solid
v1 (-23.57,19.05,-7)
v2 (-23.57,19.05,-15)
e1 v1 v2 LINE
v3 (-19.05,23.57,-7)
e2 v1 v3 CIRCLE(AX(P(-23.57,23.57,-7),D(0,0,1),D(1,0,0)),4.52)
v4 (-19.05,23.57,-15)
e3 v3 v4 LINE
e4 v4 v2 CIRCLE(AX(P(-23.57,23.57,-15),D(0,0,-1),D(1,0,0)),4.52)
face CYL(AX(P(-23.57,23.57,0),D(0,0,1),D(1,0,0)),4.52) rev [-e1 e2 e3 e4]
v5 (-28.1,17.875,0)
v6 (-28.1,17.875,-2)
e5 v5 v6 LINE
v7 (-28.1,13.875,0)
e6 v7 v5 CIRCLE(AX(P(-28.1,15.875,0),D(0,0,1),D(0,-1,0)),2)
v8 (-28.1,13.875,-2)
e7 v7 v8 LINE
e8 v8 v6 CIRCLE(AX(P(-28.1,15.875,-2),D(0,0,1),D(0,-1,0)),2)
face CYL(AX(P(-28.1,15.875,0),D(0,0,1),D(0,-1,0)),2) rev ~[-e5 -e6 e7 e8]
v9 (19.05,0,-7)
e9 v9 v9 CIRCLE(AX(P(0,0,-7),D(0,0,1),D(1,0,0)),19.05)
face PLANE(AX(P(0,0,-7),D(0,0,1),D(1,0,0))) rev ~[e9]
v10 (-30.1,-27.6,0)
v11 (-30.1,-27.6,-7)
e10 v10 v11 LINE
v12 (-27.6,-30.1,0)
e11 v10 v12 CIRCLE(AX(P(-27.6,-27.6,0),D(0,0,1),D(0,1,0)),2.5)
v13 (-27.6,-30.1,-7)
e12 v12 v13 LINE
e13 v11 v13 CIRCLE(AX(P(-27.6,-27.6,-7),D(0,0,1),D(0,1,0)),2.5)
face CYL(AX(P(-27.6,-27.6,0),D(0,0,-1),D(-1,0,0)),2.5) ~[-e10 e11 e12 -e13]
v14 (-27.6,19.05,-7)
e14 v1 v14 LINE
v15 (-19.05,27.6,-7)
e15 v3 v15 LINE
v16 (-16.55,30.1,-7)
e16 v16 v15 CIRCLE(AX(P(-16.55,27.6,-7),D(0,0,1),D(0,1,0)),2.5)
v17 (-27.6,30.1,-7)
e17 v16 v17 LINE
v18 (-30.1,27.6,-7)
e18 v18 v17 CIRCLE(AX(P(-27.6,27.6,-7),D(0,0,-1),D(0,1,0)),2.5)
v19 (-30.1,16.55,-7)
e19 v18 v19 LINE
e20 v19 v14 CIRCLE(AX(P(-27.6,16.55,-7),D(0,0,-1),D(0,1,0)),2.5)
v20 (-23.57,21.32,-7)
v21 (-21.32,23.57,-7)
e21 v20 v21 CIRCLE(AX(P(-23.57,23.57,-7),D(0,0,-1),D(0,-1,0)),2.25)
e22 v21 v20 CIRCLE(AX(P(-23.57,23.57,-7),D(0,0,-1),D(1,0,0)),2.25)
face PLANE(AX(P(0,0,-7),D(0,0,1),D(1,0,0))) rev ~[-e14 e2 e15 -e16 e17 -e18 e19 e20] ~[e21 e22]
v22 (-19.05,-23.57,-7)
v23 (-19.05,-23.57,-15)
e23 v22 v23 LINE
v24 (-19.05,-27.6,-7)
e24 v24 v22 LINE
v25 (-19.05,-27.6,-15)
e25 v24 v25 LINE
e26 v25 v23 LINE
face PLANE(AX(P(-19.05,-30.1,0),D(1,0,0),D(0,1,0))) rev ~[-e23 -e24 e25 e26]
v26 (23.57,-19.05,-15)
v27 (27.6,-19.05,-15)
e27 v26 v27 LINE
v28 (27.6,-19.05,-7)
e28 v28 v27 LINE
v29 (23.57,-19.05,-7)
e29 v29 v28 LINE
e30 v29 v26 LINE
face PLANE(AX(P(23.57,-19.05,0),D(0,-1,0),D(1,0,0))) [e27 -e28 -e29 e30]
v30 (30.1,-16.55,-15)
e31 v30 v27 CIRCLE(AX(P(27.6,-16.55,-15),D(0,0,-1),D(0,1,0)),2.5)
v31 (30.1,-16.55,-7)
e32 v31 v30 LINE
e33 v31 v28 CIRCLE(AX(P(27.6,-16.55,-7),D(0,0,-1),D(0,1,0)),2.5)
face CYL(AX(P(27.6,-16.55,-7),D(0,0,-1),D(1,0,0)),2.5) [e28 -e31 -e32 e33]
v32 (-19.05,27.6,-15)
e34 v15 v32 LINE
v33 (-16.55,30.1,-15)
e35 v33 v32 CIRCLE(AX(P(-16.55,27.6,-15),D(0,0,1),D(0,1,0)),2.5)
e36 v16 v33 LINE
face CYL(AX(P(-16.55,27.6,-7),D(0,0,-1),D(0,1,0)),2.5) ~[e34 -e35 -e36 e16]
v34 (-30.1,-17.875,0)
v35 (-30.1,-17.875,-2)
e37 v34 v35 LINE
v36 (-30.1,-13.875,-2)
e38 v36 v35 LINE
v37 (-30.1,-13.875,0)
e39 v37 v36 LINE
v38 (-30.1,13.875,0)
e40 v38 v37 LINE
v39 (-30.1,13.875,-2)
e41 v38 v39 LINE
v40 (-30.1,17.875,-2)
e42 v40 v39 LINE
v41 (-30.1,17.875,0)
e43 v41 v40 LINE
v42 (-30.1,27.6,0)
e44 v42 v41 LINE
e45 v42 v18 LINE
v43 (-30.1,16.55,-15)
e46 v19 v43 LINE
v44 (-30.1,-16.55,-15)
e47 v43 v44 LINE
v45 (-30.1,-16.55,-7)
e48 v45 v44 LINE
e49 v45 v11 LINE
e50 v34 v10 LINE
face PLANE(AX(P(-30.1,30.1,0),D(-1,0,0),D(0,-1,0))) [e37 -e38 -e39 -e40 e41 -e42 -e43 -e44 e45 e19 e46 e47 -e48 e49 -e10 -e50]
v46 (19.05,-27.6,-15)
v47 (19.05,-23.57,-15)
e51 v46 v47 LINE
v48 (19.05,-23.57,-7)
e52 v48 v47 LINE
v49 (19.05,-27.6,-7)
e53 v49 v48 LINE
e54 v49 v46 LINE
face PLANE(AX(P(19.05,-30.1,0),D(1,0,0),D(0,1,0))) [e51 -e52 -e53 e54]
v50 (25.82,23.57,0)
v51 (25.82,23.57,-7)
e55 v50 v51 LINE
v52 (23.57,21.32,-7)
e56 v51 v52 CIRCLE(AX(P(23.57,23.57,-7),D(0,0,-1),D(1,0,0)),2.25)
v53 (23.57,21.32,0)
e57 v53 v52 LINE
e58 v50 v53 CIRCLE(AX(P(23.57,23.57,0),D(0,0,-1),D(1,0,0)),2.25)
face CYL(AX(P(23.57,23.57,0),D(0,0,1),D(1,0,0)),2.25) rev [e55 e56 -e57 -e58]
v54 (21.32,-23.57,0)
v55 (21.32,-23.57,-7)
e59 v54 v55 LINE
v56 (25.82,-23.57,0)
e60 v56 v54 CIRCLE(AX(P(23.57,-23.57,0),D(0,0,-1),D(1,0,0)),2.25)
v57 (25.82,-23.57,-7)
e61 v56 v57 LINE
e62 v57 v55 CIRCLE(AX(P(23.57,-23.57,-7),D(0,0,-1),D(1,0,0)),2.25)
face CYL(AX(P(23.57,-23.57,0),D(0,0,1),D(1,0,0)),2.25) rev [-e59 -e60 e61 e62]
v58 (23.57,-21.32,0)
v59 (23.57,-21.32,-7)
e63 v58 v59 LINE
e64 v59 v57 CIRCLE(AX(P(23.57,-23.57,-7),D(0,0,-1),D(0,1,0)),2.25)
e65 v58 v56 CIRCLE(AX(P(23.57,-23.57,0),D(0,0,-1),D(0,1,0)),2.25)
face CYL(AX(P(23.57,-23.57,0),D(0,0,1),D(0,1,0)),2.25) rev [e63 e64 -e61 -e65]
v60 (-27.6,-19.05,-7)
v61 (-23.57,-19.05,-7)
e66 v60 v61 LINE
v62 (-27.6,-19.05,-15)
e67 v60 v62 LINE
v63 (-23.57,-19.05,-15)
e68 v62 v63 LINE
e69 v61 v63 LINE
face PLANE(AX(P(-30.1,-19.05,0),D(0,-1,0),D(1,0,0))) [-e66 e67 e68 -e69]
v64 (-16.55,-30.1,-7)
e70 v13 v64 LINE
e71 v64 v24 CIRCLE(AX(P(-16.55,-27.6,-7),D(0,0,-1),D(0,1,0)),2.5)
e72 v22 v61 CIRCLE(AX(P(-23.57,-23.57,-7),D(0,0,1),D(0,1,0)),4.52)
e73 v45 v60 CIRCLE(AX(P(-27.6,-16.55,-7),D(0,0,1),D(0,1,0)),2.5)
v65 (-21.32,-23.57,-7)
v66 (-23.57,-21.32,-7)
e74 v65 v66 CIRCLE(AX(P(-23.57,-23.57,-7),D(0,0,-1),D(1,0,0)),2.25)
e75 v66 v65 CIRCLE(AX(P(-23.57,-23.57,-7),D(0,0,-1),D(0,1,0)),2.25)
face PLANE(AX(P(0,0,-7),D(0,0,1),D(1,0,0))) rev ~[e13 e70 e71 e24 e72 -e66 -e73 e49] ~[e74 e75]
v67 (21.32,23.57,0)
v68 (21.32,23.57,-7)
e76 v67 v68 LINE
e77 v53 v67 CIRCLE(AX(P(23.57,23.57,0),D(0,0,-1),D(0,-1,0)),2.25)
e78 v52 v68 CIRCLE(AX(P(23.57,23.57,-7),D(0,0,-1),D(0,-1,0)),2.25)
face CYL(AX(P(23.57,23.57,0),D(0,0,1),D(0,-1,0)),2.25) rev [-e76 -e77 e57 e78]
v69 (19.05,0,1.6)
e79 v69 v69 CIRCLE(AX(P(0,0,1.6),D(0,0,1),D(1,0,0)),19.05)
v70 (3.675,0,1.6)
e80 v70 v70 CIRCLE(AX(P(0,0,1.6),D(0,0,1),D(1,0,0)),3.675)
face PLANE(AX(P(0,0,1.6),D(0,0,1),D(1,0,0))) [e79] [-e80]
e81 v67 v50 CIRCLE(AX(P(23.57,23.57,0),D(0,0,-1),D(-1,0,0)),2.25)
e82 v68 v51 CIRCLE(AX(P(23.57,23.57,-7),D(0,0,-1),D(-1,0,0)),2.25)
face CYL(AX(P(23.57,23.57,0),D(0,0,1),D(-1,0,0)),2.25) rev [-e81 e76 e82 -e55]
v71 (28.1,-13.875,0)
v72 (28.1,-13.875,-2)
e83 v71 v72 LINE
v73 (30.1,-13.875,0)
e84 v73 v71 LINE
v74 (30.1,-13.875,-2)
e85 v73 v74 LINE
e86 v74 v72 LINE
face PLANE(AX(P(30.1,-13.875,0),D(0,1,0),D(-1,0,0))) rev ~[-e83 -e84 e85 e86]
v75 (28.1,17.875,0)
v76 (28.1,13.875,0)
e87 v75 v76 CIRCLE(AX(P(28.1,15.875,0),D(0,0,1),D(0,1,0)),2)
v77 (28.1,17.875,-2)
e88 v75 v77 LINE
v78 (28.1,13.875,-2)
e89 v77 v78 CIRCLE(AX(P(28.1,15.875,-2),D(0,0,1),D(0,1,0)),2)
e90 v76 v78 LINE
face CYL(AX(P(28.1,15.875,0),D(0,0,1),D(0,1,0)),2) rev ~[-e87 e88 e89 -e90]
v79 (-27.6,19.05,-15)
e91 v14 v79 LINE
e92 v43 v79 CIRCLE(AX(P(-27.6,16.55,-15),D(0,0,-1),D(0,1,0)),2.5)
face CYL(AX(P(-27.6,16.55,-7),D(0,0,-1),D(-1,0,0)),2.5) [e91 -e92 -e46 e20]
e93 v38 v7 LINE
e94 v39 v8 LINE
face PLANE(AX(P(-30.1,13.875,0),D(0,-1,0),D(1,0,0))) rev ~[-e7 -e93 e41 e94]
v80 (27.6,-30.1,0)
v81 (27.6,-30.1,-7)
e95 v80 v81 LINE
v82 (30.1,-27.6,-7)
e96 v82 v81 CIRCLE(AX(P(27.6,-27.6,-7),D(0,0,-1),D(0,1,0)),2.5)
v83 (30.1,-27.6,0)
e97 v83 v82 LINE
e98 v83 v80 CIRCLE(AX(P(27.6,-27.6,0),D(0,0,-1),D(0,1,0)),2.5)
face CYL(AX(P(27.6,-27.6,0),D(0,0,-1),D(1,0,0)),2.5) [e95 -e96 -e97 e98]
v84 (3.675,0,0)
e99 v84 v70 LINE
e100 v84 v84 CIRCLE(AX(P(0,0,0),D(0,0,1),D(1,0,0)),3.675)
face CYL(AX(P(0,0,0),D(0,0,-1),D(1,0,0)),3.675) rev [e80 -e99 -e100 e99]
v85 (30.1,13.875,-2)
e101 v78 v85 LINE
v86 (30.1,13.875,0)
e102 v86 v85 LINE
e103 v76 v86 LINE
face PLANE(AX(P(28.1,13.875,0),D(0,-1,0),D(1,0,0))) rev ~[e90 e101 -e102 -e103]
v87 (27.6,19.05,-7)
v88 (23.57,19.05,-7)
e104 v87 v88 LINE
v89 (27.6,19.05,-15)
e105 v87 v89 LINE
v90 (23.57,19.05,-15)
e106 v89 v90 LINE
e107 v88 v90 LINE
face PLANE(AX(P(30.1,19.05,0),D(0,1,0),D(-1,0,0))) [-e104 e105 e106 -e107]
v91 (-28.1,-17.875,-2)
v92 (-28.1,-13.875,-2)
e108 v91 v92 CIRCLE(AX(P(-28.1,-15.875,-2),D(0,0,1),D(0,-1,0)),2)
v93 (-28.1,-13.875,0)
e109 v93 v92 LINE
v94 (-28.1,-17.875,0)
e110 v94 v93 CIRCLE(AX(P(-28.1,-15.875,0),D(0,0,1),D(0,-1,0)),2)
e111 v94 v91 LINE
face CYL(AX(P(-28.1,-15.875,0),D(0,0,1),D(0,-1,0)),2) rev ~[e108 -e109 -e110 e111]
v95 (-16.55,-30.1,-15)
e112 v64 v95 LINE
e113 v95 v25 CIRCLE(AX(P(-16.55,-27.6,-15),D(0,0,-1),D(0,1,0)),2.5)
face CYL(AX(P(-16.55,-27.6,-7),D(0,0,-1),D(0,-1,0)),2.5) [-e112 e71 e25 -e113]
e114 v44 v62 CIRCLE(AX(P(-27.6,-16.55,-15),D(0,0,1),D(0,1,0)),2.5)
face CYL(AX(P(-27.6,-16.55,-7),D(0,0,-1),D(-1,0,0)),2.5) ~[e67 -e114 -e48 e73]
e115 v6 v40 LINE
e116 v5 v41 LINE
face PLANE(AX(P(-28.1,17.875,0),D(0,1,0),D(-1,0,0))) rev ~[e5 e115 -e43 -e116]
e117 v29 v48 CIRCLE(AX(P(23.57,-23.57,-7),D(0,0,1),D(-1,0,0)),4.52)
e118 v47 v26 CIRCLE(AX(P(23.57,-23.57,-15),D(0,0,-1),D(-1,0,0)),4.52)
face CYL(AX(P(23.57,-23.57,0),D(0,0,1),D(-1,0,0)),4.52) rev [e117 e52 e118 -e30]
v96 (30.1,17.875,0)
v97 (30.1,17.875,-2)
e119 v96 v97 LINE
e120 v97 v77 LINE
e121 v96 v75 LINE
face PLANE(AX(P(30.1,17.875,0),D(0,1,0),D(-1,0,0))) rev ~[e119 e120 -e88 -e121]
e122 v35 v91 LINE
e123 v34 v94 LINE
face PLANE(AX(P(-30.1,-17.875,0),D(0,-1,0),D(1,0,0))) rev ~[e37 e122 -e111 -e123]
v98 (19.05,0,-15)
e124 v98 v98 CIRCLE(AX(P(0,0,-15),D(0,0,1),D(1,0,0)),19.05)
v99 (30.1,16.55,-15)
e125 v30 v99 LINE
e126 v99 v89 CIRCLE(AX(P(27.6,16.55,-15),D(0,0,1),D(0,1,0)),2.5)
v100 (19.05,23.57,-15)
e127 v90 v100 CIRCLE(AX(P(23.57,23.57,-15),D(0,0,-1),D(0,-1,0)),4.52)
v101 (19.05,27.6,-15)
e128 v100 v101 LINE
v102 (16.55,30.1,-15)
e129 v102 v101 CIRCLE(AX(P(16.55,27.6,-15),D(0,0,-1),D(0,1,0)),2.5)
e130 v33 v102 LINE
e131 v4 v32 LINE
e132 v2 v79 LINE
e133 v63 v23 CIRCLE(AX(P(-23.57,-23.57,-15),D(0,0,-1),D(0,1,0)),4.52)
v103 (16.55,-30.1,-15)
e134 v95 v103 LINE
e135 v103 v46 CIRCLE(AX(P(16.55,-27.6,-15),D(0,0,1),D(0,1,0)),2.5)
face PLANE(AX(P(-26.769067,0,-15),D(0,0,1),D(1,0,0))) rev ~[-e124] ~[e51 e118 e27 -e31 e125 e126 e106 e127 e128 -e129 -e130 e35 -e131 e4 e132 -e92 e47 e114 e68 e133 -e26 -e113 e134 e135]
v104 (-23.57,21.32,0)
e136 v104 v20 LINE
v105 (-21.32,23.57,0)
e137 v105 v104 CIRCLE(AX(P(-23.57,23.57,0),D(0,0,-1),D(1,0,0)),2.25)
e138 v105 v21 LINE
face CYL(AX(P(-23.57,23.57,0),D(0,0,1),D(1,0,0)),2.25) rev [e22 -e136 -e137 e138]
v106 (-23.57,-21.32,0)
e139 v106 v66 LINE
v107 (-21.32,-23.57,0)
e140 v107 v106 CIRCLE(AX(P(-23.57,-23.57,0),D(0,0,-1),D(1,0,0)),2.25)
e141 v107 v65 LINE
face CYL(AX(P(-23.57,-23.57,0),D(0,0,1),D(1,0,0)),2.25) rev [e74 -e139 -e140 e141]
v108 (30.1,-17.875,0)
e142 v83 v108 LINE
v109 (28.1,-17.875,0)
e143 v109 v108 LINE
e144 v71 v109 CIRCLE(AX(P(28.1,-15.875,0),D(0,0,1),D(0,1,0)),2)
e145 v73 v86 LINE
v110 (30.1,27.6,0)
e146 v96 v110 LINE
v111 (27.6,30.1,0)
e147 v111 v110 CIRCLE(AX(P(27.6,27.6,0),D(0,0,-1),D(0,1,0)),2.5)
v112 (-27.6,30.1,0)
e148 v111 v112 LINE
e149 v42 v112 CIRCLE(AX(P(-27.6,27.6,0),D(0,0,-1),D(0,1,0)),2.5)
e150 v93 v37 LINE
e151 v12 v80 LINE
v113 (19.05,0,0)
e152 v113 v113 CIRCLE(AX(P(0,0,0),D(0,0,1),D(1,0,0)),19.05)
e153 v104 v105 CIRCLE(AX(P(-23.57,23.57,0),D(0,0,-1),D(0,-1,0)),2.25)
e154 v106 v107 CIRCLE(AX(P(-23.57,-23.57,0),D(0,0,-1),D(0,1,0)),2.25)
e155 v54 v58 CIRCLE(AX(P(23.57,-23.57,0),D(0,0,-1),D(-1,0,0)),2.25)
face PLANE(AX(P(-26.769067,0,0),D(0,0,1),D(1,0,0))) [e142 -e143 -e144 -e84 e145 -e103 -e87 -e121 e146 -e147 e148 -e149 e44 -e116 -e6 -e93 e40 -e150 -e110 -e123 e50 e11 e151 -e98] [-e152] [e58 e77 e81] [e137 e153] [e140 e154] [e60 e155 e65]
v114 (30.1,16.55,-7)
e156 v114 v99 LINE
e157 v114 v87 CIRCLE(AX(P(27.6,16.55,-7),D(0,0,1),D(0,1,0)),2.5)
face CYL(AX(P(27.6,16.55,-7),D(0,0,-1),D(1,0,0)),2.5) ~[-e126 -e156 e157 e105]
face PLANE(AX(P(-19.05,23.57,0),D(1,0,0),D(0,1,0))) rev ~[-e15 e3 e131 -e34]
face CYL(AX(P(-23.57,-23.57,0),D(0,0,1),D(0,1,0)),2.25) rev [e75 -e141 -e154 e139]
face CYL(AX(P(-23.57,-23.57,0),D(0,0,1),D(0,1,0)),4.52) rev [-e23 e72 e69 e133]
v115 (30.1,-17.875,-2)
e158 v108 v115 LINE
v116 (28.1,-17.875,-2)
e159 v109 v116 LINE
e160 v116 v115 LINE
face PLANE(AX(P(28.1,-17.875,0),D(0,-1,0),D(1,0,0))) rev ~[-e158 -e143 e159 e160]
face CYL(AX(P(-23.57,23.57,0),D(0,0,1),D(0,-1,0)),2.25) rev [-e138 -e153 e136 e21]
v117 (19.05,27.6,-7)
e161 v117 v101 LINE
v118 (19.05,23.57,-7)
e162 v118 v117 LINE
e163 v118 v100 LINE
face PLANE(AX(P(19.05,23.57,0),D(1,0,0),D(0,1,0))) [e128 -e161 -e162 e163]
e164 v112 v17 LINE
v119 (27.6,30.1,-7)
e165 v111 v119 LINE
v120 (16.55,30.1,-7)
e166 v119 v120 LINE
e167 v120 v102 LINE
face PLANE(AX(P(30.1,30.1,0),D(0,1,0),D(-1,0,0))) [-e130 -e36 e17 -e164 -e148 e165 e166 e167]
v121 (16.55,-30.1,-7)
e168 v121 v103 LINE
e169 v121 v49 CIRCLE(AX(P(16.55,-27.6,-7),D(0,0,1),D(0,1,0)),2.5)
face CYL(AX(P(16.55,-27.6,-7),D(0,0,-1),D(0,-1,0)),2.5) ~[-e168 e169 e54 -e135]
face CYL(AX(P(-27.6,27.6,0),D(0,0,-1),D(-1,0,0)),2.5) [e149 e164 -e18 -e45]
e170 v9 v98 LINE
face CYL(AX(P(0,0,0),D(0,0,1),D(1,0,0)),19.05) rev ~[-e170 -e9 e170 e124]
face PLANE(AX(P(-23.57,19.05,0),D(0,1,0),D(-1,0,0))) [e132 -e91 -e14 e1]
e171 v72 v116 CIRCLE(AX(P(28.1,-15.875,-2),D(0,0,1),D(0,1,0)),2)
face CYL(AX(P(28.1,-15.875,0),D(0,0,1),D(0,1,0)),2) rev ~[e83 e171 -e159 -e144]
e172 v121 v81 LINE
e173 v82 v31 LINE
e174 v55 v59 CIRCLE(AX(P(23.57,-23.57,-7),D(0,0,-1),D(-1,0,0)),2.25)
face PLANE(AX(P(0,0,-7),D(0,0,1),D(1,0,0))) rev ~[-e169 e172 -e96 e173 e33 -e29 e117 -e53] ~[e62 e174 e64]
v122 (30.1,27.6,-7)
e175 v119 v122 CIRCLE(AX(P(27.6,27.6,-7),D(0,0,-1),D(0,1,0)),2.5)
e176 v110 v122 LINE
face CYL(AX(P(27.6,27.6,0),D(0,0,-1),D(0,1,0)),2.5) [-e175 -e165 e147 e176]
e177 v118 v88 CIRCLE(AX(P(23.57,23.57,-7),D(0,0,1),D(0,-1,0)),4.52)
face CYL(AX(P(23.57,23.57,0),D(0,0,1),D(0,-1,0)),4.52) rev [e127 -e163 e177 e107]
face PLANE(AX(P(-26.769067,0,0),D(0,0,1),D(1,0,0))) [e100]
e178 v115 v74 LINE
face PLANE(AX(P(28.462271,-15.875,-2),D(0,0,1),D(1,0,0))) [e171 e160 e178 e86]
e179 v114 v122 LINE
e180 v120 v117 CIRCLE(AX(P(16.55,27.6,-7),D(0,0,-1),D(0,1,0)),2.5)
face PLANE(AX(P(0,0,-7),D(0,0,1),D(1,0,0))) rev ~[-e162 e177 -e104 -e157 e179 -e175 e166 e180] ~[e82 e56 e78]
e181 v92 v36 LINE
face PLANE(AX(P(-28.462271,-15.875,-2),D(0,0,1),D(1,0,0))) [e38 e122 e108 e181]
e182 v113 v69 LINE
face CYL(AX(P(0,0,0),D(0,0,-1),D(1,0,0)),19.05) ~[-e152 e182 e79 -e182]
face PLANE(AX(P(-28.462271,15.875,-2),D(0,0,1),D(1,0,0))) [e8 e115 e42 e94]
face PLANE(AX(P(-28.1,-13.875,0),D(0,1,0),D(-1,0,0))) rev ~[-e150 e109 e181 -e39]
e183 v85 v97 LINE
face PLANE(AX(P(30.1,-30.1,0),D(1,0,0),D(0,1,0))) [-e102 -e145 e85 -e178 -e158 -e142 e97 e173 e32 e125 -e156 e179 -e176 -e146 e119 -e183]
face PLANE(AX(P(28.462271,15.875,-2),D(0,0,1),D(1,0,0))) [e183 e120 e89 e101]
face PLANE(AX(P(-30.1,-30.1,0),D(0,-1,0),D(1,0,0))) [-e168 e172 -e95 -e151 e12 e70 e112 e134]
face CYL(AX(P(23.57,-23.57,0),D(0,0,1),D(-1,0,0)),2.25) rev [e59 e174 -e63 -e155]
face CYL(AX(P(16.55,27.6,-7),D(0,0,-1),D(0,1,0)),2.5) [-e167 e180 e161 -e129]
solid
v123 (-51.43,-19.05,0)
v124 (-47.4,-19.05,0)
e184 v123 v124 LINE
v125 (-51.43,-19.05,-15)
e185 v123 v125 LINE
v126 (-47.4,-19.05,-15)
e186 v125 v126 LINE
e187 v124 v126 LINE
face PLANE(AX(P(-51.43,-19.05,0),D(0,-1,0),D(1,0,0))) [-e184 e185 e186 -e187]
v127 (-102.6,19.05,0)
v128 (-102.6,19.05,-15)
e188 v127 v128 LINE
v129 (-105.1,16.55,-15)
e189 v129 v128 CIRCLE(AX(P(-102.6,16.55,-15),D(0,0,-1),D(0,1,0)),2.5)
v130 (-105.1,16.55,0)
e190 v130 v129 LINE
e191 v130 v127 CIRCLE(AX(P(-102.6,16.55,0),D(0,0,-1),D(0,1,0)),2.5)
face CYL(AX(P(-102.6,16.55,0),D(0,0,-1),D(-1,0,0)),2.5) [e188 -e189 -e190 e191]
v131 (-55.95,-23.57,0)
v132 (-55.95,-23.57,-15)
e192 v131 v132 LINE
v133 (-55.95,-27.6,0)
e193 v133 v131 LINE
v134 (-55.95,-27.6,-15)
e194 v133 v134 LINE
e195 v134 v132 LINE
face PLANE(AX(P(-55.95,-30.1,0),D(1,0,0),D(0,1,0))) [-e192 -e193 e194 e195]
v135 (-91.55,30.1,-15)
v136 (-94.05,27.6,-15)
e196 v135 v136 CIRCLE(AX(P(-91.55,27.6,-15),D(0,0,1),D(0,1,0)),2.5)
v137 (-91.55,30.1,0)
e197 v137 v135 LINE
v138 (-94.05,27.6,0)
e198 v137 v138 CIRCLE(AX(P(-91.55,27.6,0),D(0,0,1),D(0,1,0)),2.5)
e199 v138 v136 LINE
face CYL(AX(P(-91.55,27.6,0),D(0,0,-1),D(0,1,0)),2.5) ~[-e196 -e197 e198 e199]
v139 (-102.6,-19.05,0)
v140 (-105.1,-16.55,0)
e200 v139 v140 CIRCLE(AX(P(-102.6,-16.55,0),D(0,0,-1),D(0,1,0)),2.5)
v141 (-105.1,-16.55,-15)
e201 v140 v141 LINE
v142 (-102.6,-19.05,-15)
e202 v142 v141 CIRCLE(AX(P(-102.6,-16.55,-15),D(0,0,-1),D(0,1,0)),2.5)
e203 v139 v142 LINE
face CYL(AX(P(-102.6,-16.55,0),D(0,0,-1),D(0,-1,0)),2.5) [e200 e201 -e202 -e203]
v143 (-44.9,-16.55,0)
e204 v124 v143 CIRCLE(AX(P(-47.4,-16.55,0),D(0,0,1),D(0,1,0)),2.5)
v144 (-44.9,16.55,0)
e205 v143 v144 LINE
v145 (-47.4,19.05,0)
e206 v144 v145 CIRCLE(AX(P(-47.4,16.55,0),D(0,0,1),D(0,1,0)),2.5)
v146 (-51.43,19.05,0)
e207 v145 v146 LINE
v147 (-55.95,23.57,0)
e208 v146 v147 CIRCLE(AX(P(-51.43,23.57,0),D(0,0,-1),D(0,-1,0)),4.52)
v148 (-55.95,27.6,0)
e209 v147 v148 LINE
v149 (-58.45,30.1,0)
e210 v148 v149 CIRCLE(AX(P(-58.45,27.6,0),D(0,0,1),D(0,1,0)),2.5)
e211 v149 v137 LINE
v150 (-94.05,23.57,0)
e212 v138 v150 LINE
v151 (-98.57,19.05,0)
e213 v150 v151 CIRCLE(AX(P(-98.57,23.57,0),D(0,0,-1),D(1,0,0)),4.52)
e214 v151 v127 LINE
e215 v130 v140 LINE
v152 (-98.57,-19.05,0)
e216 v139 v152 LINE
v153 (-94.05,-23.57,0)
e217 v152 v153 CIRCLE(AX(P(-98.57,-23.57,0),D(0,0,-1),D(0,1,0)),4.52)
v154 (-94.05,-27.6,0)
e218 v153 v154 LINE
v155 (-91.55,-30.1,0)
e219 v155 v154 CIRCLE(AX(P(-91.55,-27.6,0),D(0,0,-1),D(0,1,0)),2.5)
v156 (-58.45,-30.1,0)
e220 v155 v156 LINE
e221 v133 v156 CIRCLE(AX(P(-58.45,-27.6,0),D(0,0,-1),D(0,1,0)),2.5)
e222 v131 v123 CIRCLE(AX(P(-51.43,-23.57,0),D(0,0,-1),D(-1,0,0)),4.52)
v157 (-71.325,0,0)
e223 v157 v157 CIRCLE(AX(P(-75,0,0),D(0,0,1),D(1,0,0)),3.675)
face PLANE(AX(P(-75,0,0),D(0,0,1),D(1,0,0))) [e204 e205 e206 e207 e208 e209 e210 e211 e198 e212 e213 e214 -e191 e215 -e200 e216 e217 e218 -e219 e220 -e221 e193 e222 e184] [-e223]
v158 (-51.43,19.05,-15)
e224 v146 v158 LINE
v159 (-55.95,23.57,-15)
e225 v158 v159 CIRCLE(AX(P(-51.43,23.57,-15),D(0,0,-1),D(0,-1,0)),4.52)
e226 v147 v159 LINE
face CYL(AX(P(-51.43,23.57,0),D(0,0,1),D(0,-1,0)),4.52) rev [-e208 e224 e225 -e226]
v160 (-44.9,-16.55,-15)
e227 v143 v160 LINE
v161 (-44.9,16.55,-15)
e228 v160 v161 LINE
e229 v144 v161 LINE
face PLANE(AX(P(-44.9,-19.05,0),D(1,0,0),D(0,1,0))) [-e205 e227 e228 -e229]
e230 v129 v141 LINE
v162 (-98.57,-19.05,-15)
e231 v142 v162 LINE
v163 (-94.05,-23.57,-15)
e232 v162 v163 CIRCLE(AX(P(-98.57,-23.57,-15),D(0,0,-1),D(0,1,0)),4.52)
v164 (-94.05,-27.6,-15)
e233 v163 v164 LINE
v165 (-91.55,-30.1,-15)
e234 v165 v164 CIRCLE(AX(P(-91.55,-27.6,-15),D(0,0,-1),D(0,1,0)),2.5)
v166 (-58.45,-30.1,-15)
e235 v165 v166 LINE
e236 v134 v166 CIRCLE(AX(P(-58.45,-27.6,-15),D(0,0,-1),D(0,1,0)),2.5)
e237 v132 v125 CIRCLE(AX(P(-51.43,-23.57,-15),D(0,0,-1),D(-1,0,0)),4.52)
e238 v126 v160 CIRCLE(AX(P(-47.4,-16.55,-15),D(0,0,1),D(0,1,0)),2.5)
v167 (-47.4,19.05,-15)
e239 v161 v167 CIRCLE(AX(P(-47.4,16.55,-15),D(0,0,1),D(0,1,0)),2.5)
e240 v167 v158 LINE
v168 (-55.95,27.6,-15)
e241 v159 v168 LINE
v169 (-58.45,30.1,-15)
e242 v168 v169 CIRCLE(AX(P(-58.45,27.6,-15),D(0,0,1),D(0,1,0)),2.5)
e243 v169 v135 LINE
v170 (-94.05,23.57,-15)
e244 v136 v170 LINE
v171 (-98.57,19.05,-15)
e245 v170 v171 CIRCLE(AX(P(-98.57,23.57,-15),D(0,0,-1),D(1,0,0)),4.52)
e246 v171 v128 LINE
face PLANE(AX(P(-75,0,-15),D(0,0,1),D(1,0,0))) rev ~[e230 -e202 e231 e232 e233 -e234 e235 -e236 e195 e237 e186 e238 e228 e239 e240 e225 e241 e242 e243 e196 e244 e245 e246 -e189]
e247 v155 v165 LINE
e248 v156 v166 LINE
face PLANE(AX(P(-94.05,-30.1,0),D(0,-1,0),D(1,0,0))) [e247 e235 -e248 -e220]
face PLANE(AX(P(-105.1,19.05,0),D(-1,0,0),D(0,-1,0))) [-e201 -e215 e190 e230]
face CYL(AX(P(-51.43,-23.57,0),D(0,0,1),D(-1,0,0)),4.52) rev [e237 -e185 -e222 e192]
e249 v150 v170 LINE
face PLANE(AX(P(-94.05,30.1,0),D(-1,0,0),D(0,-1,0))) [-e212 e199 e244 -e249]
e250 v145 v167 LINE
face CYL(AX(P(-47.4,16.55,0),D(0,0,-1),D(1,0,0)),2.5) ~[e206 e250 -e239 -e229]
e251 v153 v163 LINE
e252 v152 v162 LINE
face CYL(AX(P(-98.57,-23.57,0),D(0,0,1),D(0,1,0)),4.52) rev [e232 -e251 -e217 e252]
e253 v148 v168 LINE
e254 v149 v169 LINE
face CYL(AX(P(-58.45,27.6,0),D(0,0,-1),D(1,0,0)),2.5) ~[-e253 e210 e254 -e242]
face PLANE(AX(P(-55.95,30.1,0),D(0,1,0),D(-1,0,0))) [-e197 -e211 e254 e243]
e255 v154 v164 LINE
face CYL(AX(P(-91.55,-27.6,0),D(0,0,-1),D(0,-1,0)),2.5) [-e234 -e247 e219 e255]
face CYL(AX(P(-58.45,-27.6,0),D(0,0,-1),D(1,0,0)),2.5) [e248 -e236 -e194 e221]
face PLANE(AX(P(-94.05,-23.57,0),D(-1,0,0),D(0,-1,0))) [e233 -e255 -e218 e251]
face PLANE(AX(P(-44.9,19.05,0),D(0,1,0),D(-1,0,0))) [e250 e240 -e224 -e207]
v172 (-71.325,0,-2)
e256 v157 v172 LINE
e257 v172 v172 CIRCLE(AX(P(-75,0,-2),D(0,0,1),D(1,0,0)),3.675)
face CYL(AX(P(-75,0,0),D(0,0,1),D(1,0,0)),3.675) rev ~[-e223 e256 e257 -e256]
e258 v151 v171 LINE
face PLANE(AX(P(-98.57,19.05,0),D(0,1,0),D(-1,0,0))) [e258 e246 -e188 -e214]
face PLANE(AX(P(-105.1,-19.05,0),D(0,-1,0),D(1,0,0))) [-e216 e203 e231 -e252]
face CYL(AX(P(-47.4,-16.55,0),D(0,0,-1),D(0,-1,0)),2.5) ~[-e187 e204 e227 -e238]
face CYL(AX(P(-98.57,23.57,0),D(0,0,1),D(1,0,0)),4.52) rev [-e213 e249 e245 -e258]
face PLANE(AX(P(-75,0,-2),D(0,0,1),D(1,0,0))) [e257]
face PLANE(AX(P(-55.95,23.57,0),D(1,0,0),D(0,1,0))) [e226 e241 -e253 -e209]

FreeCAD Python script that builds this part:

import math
import FreeCAD as App
import Part
import Sketcher
from FreeCAD import Vector
Q = App.Units.Quantity


def edges_at(feature, points):
    """Names of the edges that pass closest to the given points."""
    edges = feature.Shape.Edges
    near = lambda p: min(range(len(edges)), key=lambda i: edges[i].distToShape(Part.Vertex(*p))[0])
    return sorted({f"Edge{near(p) + 1}" for p in points})


def add_polygon(sketch, points):
    """Adds a closed chain of lines whose ends are joined by coincident constraints."""
    first, n = sketch.GeometryCount, len(points)
    for a, b in zip(points, points[1:] + points[:1]):
        sketch.addGeometry(Part.LineSegment(App.Vector(*a, 0), App.Vector(*b, 0)), False)
    for i in range(n):
        sketch.addConstraint(Sketcher.Constraint("Coincident", first + i, 2, first + (i + 1) % n, 1))

doc = App.newDocument("Part")
body = doc.addObject("PartDesign::Body", "Body")

# Sketch on XY plane
sketch1 = body.newObject("Sketcher::SketchObject", "Sketch")
sketch1.AttachmentSupport = (doc.getObject("XY_Plane"), [""])
sketch1.MapMode = "FlatFace"
add_polygon(sketch1, [(-30.1, 30.1), (-30.1, -30.1), (30.1, -30.1), (30.1, 30.1)])  # lines 0-3
sketch1.addGeometry(Part.ArcOfCircle(Part.Circle(Vector(23.57, 23.57, 0), Vector(0, 0, 1), 2.25), math.radians(0), math.radians(180)), False)  # 4
sketch1.addGeometry(Part.ArcOfCircle(Part.Circle(Vector(23.57, 23.57, 0), Vector(0, 0, 1), 2.25), math.radians(-90), math.radians(0)), False)  # 5
sketch1.addGeometry(Part.ArcOfCircle(Part.Circle(Vector(23.57, 23.57, 0), Vector(0, 0, 1), 2.25), math.radians(180), math.radians(270)), False)  # 6
sketch1.addGeometry(Part.ArcOfCircle(Part.Circle(Vector(23.57, -23.57, 0), Vector(0, 0, 1), 2.25), math.radians(0), math.radians(90)), False)  # 7
sketch1.addGeometry(Part.ArcOfCircle(Part.Circle(Vector(23.57, -23.57, 0), Vector(0, 0, 1), 2.25), math.radians(180), math.radians(360)), False)  # 8
sketch1.addGeometry(Part.ArcOfCircle(Part.Circle(Vector(23.57, -23.57, 0), Vector(0, 0, 1), 2.25), math.radians(90), math.radians(180)), False)  # 9
sketch1.addGeometry(Part.ArcOfCircle(Part.Circle(Vector(-23.57, -23.57, 0), Vector(0, 0, 1), 2.25), math.radians(90), math.radians(360)), False)  # 10
sketch1.addGeometry(Part.ArcOfCircle(Part.Circle(Vector(-23.57, -23.57, 0), Vector(0, 0, 1), 2.25), math.radians(0), math.radians(90)), False)  # 11
sketch1.addGeometry(Part.ArcOfCircle(Part.Circle(Vector(-23.57, 23.57, 0), Vector(0, 0, 1), 2.25), math.radians(0), math.radians(270)), False)  # 12
sketch1.addGeometry(Part.ArcOfCircle(Part.Circle(Vector(-23.57, 23.57, 0), Vector(0, 0, 1), 2.25), math.radians(-90), math.radians(0)), False)  # 13
sketch1.addConstraint(Sketcher.Constraint("Tangent", 4, 1, 5, 2))
sketch1.addConstraint(Sketcher.Constraint("Tangent", 5, 1, 6, 2))
sketch1.addConstraint(Sketcher.Constraint("Tangent", 6, 1, 4, 2))
sketch1.addConstraint(Sketcher.Constraint("Tangent", 7, 1, 8, 2))
sketch1.addConstraint(Sketcher.Constraint("Tangent", 8, 1, 9, 2))
sketch1.addConstraint(Sketcher.Constraint("Tangent", 9, 1, 7, 2))
sketch1.addConstraint(Sketcher.Constraint("Tangent", 10, 1, 11, 2))
sketch1.addConstraint(Sketcher.Constraint("Coincident", 11, 1, 10, 2))
sketch1.addConstraint(Sketcher.Constraint("Tangent", 12, 1, 13, 2))
sketch1.addConstraint(Sketcher.Constraint("Coincident", 13, 1, 12, 2))
sketch1.addConstraint(Sketcher.Constraint("Vertical", 0))
sketch1.addConstraint(Sketcher.Constraint("Horizontal", 1))
sketch1.addConstraint(Sketcher.Constraint("Vertical", 2))
sketch1.addConstraint(Sketcher.Constraint("Horizontal", 3))
sketch1.addConstraint(Sketcher.Constraint("Equal", 6, 7))
sketch1.addConstraint(Sketcher.Constraint("Equal", 9, 10))
sketch1.addConstraint(Sketcher.Constraint("Equal", 11, 12))
sketch1.addConstraint(Sketcher.Constraint("Symmetric", 4, 3, 10, 3, -1, 1))
sketch1.addConstraint(Sketcher.Constraint("Symmetric", 7, 3, 12, 3, -1, 1))
sketch1.addConstraint(Sketcher.Constraint("Symmetric", 0, 2, 2, 2, -1, 1))
sketch1.addConstraint(Sketcher.Constraint("Symmetric", 7, 3, 10, 3, -2))
sketch1.addConstraint(Sketcher.Constraint("Horizontal", 13, 3, 4, 1))
sketch1.addConstraint(Sketcher.Constraint("Horizontal", 4, 1, 6, 1))
sketch1.addConstraint(Sketcher.Constraint("Horizontal", 11, 3, 7, 1))
sketch1.addConstraint(Sketcher.Constraint("Horizontal", 7, 1, 8, 1))
sketch1.addConstraint(Sketcher.Constraint("Horizontal", 8, 1, 11, 1))
sketch1.addConstraint(Sketcher.Constraint("Horizontal", 6, 1, 12, 1))
sketch1.addConstraint(Sketcher.Constraint("Vertical", 9, 3, 5, 1))
sketch1.addConstraint(Sketcher.Constraint("Vertical", 5, 1, 9, 1))
sketch1.addConstraint(Sketcher.Constraint("Vertical", 13, 3, 10, 1))
sketch1.addConstraint(Sketcher.Constraint("Vertical", 10, 1, 13, 1))
sketch1.addConstraint(Sketcher.Constraint("Equal", 3, 0))
sketch1.addConstraint(Sketcher.Constraint("Radius", 4, Q("2.25 mm")))
sketch1.addConstraint(Sketcher.Constraint("DistanceX", 1, 1, 1, 2, Q("60.2 mm")))
sketch1.addConstraint(Sketcher.Constraint("DistanceX", -1, 1, 4, 3, Q("23.57 mm")))
sketch1.addConstraint(Sketcher.Constraint("DistanceY", -1, 1, 4, 3, Q("23.57 mm")))
pad1 = body.newObject("PartDesign::Pad", "Pad")
pad1.Profile = sketch1
pad1.Length = 7
pad1.Reversed = True

# Sketch on XY plane
sketch2 = body.newObject("Sketcher::SketchObject", "Sketch001")
sketch2.AttachmentSupport = (doc.getObject("XY_Plane"), [""])
sketch2.MapMode = "FlatFace"
sketch2.addGeometry(Part.LineSegment(Vector(-23.57, 19.05, 0), Vector(-30.1, 19.05, 0)), False)
sketch2.addGeometry(Part.LineSegment(Vector(-30.1, 19.05, 0), Vector(-30.1, -19.05, 0)), False)
sketch2.addGeometry(Part.LineSegment(Vector(-30.1, -19.05, 0), Vector(-23.57, -19.05, 0)), False)
sketch2.addGeometry(Part.ArcOfCircle(Part.Circle(Vector(-23.57, -23.57, 0), Vector(0, 0, 1), 4.52), math.radians(0), math.radians(90)), False)
sketch2.addGeometry(Part.LineSegment(Vector(-19.05, -23.57, 0), Vector(-19.05, -30.1, 0)), False)
sketch2.addGeometry(Part.LineSegment(Vector(-19.05, -30.1, 0), Vector(19.05, -30.1, 0)), False)
sketch2.addGeometry(Part.LineSegment(Vector(19.05, -30.1, 0), Vector(19.05, -23.57, 0)), False)
sketch2.addGeometry(Part.ArcOfCircle(Part.Circle(Vector(23.57, -23.57, 0), Vector(0, 0, 1), 4.52), math.radians(90), math.radians(180)), False)
sketch2.addGeometry(Part.LineSegment(Vector(23.57, -19.05, 0), Vector(30.1, -19.05, 0)), False)
sketch2.addGeometry(Part.LineSegment(Vector(30.1, -19.05, 0), Vector(30.1, 19.05, 0)), False)
sketch2.addGeometry(Part.LineSegment(Vector(30.1, 19.05, 0), Vector(23.57, 19.05, 0)), False)
sketch2.addGeometry(Part.ArcOfCircle(Part.Circle(Vector(23.57, 23.57, 0), Vector(0, 0, 1), 4.52), math.radians(180), math.radians(270)), False)
sketch2.addGeometry(Part.LineSegment(Vector(19.05, 23.57, 0), Vector(19.05, 30.1, 0)), False)
sketch2.addGeometry(Part.LineSegment(Vector(19.05, 30.1, 0), Vector(-19.05, 30.1, 0)), False)
sketch2.addGeometry(Part.LineSegment(Vector(-19.05, 30.1, 0), Vector(-19.05, 23.57, 0)), False)
sketch2.addGeometry(Part.ArcOfCircle(Part.Circle(Vector(-23.57, 23.57, 0), Vector(0, 0, 1), 4.52), math.radians(-90), math.radians(0)), False)
sketch2.addGeometry(Part.Circle(Vector(0, 0, 0), Vector(0, 0, 1), 19.05), False)
sketch2.addConstraint(Sketcher.Constraint("Coincident", 0, 2, 1, 1))
sketch2.addConstraint(Sketcher.Constraint("Coincident", 1, 2, 2, 1))
sketch2.addConstraint(Sketcher.Constraint("Tangent", 2, 2, 3, 2))
sketch2.addConstraint(Sketcher.Constraint("Tangent", 3, 1, 4, 1))
sketch2.addConstraint(Sketcher.Constraint("Coincident", 4, 2, 5, 1))
sketch2.addConstraint(Sketcher.Constraint("Coincident", 5, 2, 6, 1))
sketch2.addConstraint(Sketcher.Constraint("Tangent", 6, 2, 7, 2))
sketch2.addConstraint(Sketcher.Constraint("Tangent", 7, 1, 8, 1))
sketch2.addConstraint(Sketcher.Constraint("Coincident", 8, 2, 9, 1))
sketch2.addConstraint(Sketcher.Constraint("Coincident", 9, 2, 10, 1))
sketch2.addConstraint(Sketcher.Constraint("Tangent", 10, 2, 11, 2))
sketch2.addConstraint(Sketcher.Constraint("Tangent", 11, 1, 12, 1))
sketch2.addConstraint(Sketcher.Constraint("Coincident", 12, 2, 13, 1))
sketch2.addConstraint(Sketcher.Constraint("Coincident", 13, 2, 14, 1))
sketch2.addConstraint(Sketcher.Constraint("Tangent", 14, 2, 15, 2))
sketch2.addConstraint(Sketcher.Constraint("Tangent", 15, 1, 0, 1))
sketch2.addConstraint(Sketcher.Constraint("Horizontal", 0))
sketch2.addConstraint(Sketcher.Constraint("Vertical", 1))
sketch2.addConstraint(Sketcher.Constraint("Horizontal", 2))
sketch2.addConstraint(Sketcher.Constraint("Vertical", 4))
sketch2.addConstraint(Sketcher.Constraint("Horizontal", 5))
sketch2.addConstraint(Sketcher.Constraint("Vertical", 6))
sketch2.addConstraint(Sketcher.Constraint("Horizontal", 8))
sketch2.addConstraint(Sketcher.Constraint("Vertical", 9))
sketch2.addConstraint(Sketcher.Constraint("Horizontal", 10))
sketch2.addConstraint(Sketcher.Constraint("Vertical", 12))
sketch2.addConstraint(Sketcher.Constraint("Horizontal", 13))
sketch2.addConstraint(Sketcher.Constraint("Vertical", 14))
sketch2.addConstraint(Sketcher.Constraint("Coincident", 16, 3, -1, 1))
sketch2.addConstraint(Sketcher.Constraint("Equal", 3, 7))
sketch2.addConstraint(Sketcher.Constraint("Equal", 7, 11))
sketch2.addConstraint(Sketcher.Constraint("Equal", 11, 15))
sketch2.addConstraint(Sketcher.Constraint("Symmetric", 3, 3, 11, 3, -1, 1))
sketch2.addConstraint(Sketcher.Constraint("Symmetric", 7, 3, 15, 3, -1, 1))
sketch2.addConstraint(Sketcher.Constraint("Symmetric", 3, 3, 7, 3, -2))
sketch2.addConstraint(Sketcher.Constraint("Equal", 2, 8))
sketch2.addConstraint(Sketcher.Constraint("Equal", 13, 1))
sketch2.addConstraint(Sketcher.Constraint("Equal", 10, 4))
sketch2.addConstraint(Sketcher.Constraint("Equal", 6, 12))
sketch2.addConstraint(Sketcher.Constraint("Diameter", 16, Q("38.1 mm")))
sketch2.addConstraint(Sketcher.Constraint("Radius", 3, Q("4.52 mm")))
sketch2.addConstraint(Sketcher.Constraint("DistanceX", 5, 1, 5, 2, Q("38.1 mm")))
sketch2.addConstraint(Sketcher.Constraint("DistanceX", 0, 2, 0, 1, Q("6.53 mm")))
pad2 = body.newObject("PartDesign::Pad", "Pad001")
pad2.Profile = sketch2
pad2.Length = 15
pad2.Reversed = True

# Sketch on XY plane
sketch3 = body.newObject("Sketcher::SketchObject", "Sketch002")
sketch3.AttachmentSupport = (doc.getObject("XY_Plane"), [""])
sketch3.MapMode = "FlatFace"
sketch3.addGeometry(Part.Circle(Vector(0, 0, 0), Vector(0, 0, 1), 19.05), False)
sketch3.addGeometry(Part.Circle(Vector(0, 0, 0), Vector(0, 0, 1), 3.675), False)
sketch3.addConstraint(Sketcher.Constraint("Coincident", 0, 3, -1, 1))
sketch3.addConstraint(Sketcher.Constraint("Coincident", 1, 3, -1, 1))
sketch3.addConstraint(Sketcher.Constraint("Diameter", 0, Q("38.1 mm")))
sketch3.addConstraint(Sketcher.Constraint("Diameter", 1, Q("7.35 mm")))
pad3 = body.newObject("PartDesign::Pad", "Pad002")
pad3.Profile = sketch3
pad3.Length = 1.6

# Sketch on XY plane
sketch4 = body.newObject("Sketcher::SketchObject", "Sketch003")
sketch4.AttachmentSupport = (doc.getObject("XY_Plane"), [""])
sketch4.MapMode = "FlatFace"
sketch4.addGeometry(Part.LineSegment(Vector(-28.1, 17.875, 0), Vector(-30.1, 17.875, 0)), False)
sketch4.addGeometry(Part.LineSegment(Vector(-30.1, 17.875, 0), Vector(-30.1, 13.875, 0)), False)
sketch4.addGeometry(Part.LineSegment(Vector(-30.1, 13.875, 0), Vector(-28.1, 13.875, 0)), False)
sketch4.addGeometry(Part.ArcOfCircle(Part.Circle(Vector(-28.1, 15.875, 0), Vector(0, 0, 1), 2), math.radians(-90), math.radians(90)), False)
sketch4.addGeometry(Part.LineSegment(Vector(-28.1, -13.875, 0), Vector(-30.1, -13.875, 0)), False)
sketch4.addGeometry(Part.LineSegment(Vector(-30.1, -13.875, 0), Vector(-30.1, -17.875, 0)), False)
sketch4.addGeometry(Part.LineSegment(Vector(-30.1, -17.875, 0), Vector(-28.1, -17.875, 0)), False)
sketch4.addGeometry(Part.ArcOfCircle(Part.Circle(Vector(-28.1, -15.875, 0), Vector(0, 0, 1), 2), math.radians(-90), math.radians(90)), False)
sketch4.addGeometry(Part.LineSegment(Vector(30.1, 13.875, 0), Vector(30.1, 17.875, 0)), False)
sketch4.addGeometry(Part.LineSegment(Vector(30.1, 17.875, 0), Vector(28.1, 17.875, 0)), False)
sketch4.addGeometry(Part.ArcOfCircle(Part.Circle(Vector(28.1, 15.875, 0), Vector(0, 0, 1), 2), math.radians(90), math.radians(270)), False)
sketch4.addGeometry(Part.LineSegment(Vector(28.1, 13.875, 0), Vector(30.1, 13.875, 0)), False)
sketch4.addGeometry(Part.LineSegment(Vector(30.1, -17.875, 0), Vector(30.1, -13.875, 0)), False)
sketch4.addGeometry(Part.LineSegment(Vector(30.1, -13.875, 0), Vector(28.1, -13.875, 0)), False)
sketch4.addGeometry(Part.ArcOfCircle(Part.Circle(Vector(28.1, -15.875, 0), Vector(0, 0, 1), 2), math.radians(90), math.radians(270)), False)
sketch4.addGeometry(Part.LineSegment(Vector(28.1, -17.875, 0), Vector(30.1, -17.875, 0)), False)
sketch4.addConstraint(Sketcher.Constraint("Coincident", 0, 2, 1, 1))
sketch4.addConstraint(Sketcher.Constraint("Coincident", 1, 2, 2, 1))
sketch4.addConstraint(Sketcher.Constraint("Tangent", 2, 2, 3, 1))
sketch4.addConstraint(Sketcher.Constraint("Tangent", 3, 2, 0, 1))
sketch4.addConstraint(Sketcher.Constraint("Coincident", 4, 2, 5, 1))
sketch4.addConstraint(Sketcher.Constraint("Coincident", 5, 2, 6, 1))
sketch4.addConstraint(Sketcher.Constraint("Tangent", 6, 2, 7, 1))
sketch4.addConstraint(Sketcher.Constraint("Tangent", 7, 2, 4, 1))
sketch4.addConstraint(Sketcher.Constraint("Coincident", 8, 2, 9, 1))
sketch4.addConstraint(Sketcher.Constraint("Tangent", 9, 2, 10, 1))
sketch4.addConstraint(Sketcher.Constraint("Tangent", 10, 2, 11, 1))
sketch4.addConstraint(Sketcher.Constraint("Coincident", 11, 2, 8, 1))
sketch4.addConstraint(Sketcher.Constraint("Coincident", 12, 2, 13, 1))
sketch4.addConstraint(Sketcher.Constraint("Tangent", 13, 2, 14, 1))
sketch4.addConstraint(Sketcher.Constraint("Tangent", 14, 2, 15, 1))
sketch4.addConstraint(Sketcher.Constraint("Coincident", 15, 2, 12, 1))
sketch4.addConstraint(Sketcher.Constraint("Horizontal", 0))
sketch4.addConstraint(Sketcher.Constraint("Vertical", 1))
sketch4.addConstraint(Sketcher.Constraint("Horizontal", 2))
sketch4.addConstraint(Sketcher.Constraint("Horizontal", 4))
sketch4.addConstraint(Sketcher.Constraint("Vertical", 5))
sketch4.addConstraint(Sketcher.Constraint("Horizontal", 6))
sketch4.addConstraint(Sketcher.Constraint("Vertical", 8))
sketch4.addConstraint(Sketcher.Constraint("Horizontal", 9))
sketch4.addConstraint(Sketcher.Constraint("Horizontal", 11))
sketch4.addConstraint(Sketcher.Constraint("Vertical", 12))
sketch4.addConstraint(Sketcher.Constraint("Horizontal", 13))
sketch4.addConstraint(Sketcher.Constraint("Horizontal", 15))
sketch4.addConstraint(Sketcher.Constraint("Equal", 3, 7))
sketch4.addConstraint(Sketcher.Constraint("Equal", 7, 10))
sketch4.addConstraint(Sketcher.Constraint("Equal", 10, 14))
sketch4.addConstraint(Sketcher.Constraint("Symmetric", 7, 3, 10, 3, -1, 1))
sketch4.addConstraint(Sketcher.Constraint("Symmetric", 3, 3, 14, 3, -1, 1))
sketch4.addConstraint(Sketcher.Constraint("Symmetric", 3, 3, 10, 3, -2))
sketch4.addConstraint(Sketcher.Constraint("Vertical", 1, 2, 4, 2))
sketch4.addConstraint(Sketcher.Constraint("Vertical", 11, 2, 12, 2))
sketch4.addConstraint(Sketcher.Constraint("Equal", 6, 9))
sketch4.addConstraint(Sketcher.Constraint("Radius", 3, Q("2 mm")))
sketch4.addConstraint(Sketcher.Constraint("DistanceX", 0, 2, 0, 1, Q("2 mm")))
sketch4.addConstraint(Sketcher.Constraint("DistanceX", 3, 3, -1, 1, Q("28.1 mm")))
sketch4.addConstraint(Sketcher.Constraint("DistanceY", 7, 3, 3, 3, Q("31.75 mm")))
pocket1 = body.newObject("PartDesign::Pocket", "Pocket")
pocket1.Profile = sketch4
pocket1.Length = 2
doc.recompute()

fillet = body.newObject("PartDesign::Fillet", "Fillet")
fillet.Base = (pocket1, edges_at(pocket1, [
    (-30.1, -30.1, -3.5),
    (-19.05, -30.1, -11),
    (-30.1, -19.05, -11),
    (19.05, -30.1, -11),
    (30.1, -30.1, -3.5),
    (30.1, -19.05, -11),
    (30.1, 19.05, -11),
    (30.1, 30.1, -3.5),
    (19.05, 30.1, -11),
    (-19.05, 30.1, -11),
    (-30.1, 30.1, -3.5),
    (-30.1, 19.05, -11),
]))
fillet.Radius = 2.5
body2 = doc.addObject("PartDesign::Body", "Body001")

# Sketch on XY plane
sketch5 = body2.newObject("Sketcher::SketchObject", "Sketch004")
sketch5.AttachmentSupport = (doc.getObject("XY_Plane001"), [""])
sketch5.MapMode = "FlatFace"
sketch5.addGeometry(Part.LineSegment(Vector(-55.95, -30.1, 0), Vector(-55.95, -23.57, 0)), False)
sketch5.addGeometry(Part.ArcOfCircle(Part.Circle(Vector(-51.43, -23.57, 0), Vector(0, 0, 1), 4.52), math.radians(90), math.radians(180)), False)
sketch5.addGeometry(Part.LineSegment(Vector(-51.43, -19.05, 0), Vector(-44.9, -19.05, 0)), False)
sketch5.addGeometry(Part.LineSegment(Vector(-44.9, -19.05, 0), Vector(-44.9, 19.05, 0)), False)
sketch5.addGeometry(Part.LineSegment(Vector(-44.9, 19.05, 0), Vector(-51.43, 19.05, 0)), False)
sketch5.addGeometry(Part.ArcOfCircle(Part.Circle(Vector(-51.43, 23.57, 0), Vector(0, 0, 1), 4.52), math.radians(180), math.radians(270)), False)
sketch5.addGeometry(Part.LineSegment(Vector(-55.95, 23.57, 0), Vector(-55.95, 30.1, 0)), False)
sketch5.addGeometry(Part.LineSegment(Vector(-55.95, 30.1, 0), Vector(-94.05, 30.1, 0)), False)
sketch5.addGeometry(Part.LineSegment(Vector(-94.05, 30.1, 0), Vector(-94.05, 23.57, 0)), False)
sketch5.addGeometry(Part.ArcOfCircle(Part.Circle(Vector(-98.57, 23.57, 0), Vector(0, 0, 1), 4.52), math.radians(-90), math.radians(0)), False)
sketch5.addGeometry(Part.LineSegment(Vector(-98.57, 19.05, 0), Vector(-105.1, 19.05, 0)), False)
sketch5.addGeometry(Part.LineSegment(Vector(-105.1, 19.05, 0), Vector(-105.1, -19.05, 0)), False)
sketch5.addGeometry(Part.LineSegment(Vector(-105.1, -19.05, 0), Vector(-98.57, -19.05, 0)), False)
sketch5.addGeometry(Part.ArcOfCircle(Part.Circle(Vector(-98.57, -23.57, 0), Vector(0, 0, 1), 4.52), math.radians(0), math.radians(90)), False)
sketch5.addGeometry(Part.LineSegment(Vector(-94.05, -23.57, 0), Vector(-94.05, -30.1, 0)), False)
sketch5.addGeometry(Part.LineSegment(Vector(-94.05, -30.1, 0), Vector(-55.95, -30.1, 0)), False)
sketch5.addConstraint(Sketcher.Constraint("Tangent", 0, 2, 1, 2))
sketch5.addConstraint(Sketcher.Constraint("Tangent", 1, 1, 2, 1))
sketch5.addConstraint(Sketcher.Constraint("Coincident", 2, 2, 3, 1))
sketch5.addConstraint(Sketcher.Constraint("Coincident", 3, 2, 4, 1))
sketch5.addConstraint(Sketcher.Constraint("Tangent", 4, 2, 5, 2))
sketch5.addConstraint(Sketcher.Constraint("Tangent", 5, 1, 6, 1))
sketch5.addConstraint(Sketcher.Constraint("Coincident", 6, 2, 7, 1))
sketch5.addConstraint(Sketcher.Constraint("Coincident", 7, 2, 8, 1))
sketch5.addConstraint(Sketcher.Constraint("Tangent", 8, 2, 9, 2))
sketch5.addConstraint(Sketcher.Constraint("Tangent", 9, 1, 10, 1))
sketch5.addConstraint(Sketcher.Constraint("Coincident", 10, 2, 11, 1))
sketch5.addConstraint(Sketcher.Constraint("Coincident", 11, 2, 12, 1))
sketch5.addConstraint(Sketcher.Constraint("Tangent", 12, 2, 13, 2))
sketch5.addConstraint(Sketcher.Constraint("Tangent", 13, 1, 14, 1))
sketch5.addConstraint(Sketcher.Constraint("Coincident", 14, 2, 15, 1))
sketch5.addConstraint(Sketcher.Constraint("Coincident", 15, 2, 0, 1))
sketch5.addConstraint(Sketcher.Constraint("Vertical", 0))
sketch5.addConstraint(Sketcher.Constraint("Horizontal", 2))
sketch5.addConstraint(Sketcher.Constraint("Vertical", 3))
sketch5.addConstraint(Sketcher.Constraint("Horizontal", 4))
sketch5.addConstraint(Sketcher.Constraint("Vertical", 6))
sketch5.addConstraint(Sketcher.Constraint("Horizontal", 7))
sketch5.addConstraint(Sketcher.Constraint("Vertical", 8))
sketch5.addConstraint(Sketcher.Constraint("Horizontal", 10))
sketch5.addConstraint(Sketcher.Constraint("Vertical", 11))
sketch5.addConstraint(Sketcher.Constraint("Horizontal", 12))
sketch5.addConstraint(Sketcher.Constraint("Vertical", 14))
sketch5.addConstraint(Sketcher.Constraint("Horizontal", 15))
sketch5.addConstraint(Sketcher.Constraint("Equal", 1, 5))
sketch5.addConstraint(Sketcher.Constraint("Equal", 5, 9))
sketch5.addConstraint(Sketcher.Constraint("Equal", 9, 13))
sketch5.addConstraint(Sketcher.Constraint("Symmetric", 1, 3, 5, 3, -1))
sketch5.addConstraint(Sketcher.Constraint("Symmetric", 9, 3, 13, 3, -1))
sketch5.addConstraint(Sketcher.Constraint("Horizontal", 5, 3, 9, 3))
sketch5.addConstraint(Sketcher.Constraint("Equal", 4, 10))
sketch5.addConstraint(Sketcher.Constraint("Equal", 12, 0))
sketch5.addConstraint(Sketcher.Constraint("Equal", 15, 3))
sketch5.addConstraint(Sketcher.Constraint("Equal", 0, 6))
sketch5.addConstraint(Sketcher.Constraint("Radius", 1, Q("4.52 mm")))
sketch5.addConstraint(Sketcher.Constraint("DistanceX", 7, 2, 7, 1, Q("38.1 mm")))
sketch5.addConstraint(Sketcher.Constraint("DistanceX", 2, 1, 2, 2, Q("6.53 mm")))
sketch5.addConstraint(Sketcher.Constraint("DistanceX", 2, 2, -1, 1, Q("44.9 mm")))
pad4 = body2.newObject("PartDesign::Pad", "Pad003")
pad4.Profile = sketch5
pad4.Length = 15
pad4.Reversed = True

# Sketch on XY plane
sketch6 = body2.newObject("Sketcher::SketchObject", "Sketch005")
sketch6.AttachmentSupport = (doc.getObject("XY_Plane001"), [""])
sketch6.MapMode = "FlatFace"
sketch6.addGeometry(Part.Circle(Vector(-75, 0, 0), Vector(0, 0, 1), 3.675), False)
sketch6.addConstraint(Sketcher.Constraint("PointOnObject", 0, 3, -1))
sketch6.addConstraint(Sketcher.Constraint("Diameter", 0, Q("7.35 mm")))
sketch6.addConstraint(Sketcher.Constraint("DistanceX", 0, 3, -1, 1, Q("75 mm")))
pocket2 = body2.newObject("PartDesign::Pocket", "Pocket001")
pocket2.Profile = sketch6
pocket2.Length = 2
doc.recompute()

fillet2 = body2.newObject("PartDesign::Fillet", "Fillet001")
fillet2.Base = (pocket2, edges_at(pocket2, [
    (-94.05, -30.1, -7.5),
    (-55.95, -30.1, -7.5),
    (-44.9, -19.05, -7.5),
    (-44.9, 19.05, -7.5),
    (-55.95, 30.1, -7.5),
    (-94.05, 30.1, -7.5),
    (-105.1, 19.05, -7.5),
    (-105.1, -19.05, -7.5),
]))
fillet2.Radius = 2.5

doc.recompute()
